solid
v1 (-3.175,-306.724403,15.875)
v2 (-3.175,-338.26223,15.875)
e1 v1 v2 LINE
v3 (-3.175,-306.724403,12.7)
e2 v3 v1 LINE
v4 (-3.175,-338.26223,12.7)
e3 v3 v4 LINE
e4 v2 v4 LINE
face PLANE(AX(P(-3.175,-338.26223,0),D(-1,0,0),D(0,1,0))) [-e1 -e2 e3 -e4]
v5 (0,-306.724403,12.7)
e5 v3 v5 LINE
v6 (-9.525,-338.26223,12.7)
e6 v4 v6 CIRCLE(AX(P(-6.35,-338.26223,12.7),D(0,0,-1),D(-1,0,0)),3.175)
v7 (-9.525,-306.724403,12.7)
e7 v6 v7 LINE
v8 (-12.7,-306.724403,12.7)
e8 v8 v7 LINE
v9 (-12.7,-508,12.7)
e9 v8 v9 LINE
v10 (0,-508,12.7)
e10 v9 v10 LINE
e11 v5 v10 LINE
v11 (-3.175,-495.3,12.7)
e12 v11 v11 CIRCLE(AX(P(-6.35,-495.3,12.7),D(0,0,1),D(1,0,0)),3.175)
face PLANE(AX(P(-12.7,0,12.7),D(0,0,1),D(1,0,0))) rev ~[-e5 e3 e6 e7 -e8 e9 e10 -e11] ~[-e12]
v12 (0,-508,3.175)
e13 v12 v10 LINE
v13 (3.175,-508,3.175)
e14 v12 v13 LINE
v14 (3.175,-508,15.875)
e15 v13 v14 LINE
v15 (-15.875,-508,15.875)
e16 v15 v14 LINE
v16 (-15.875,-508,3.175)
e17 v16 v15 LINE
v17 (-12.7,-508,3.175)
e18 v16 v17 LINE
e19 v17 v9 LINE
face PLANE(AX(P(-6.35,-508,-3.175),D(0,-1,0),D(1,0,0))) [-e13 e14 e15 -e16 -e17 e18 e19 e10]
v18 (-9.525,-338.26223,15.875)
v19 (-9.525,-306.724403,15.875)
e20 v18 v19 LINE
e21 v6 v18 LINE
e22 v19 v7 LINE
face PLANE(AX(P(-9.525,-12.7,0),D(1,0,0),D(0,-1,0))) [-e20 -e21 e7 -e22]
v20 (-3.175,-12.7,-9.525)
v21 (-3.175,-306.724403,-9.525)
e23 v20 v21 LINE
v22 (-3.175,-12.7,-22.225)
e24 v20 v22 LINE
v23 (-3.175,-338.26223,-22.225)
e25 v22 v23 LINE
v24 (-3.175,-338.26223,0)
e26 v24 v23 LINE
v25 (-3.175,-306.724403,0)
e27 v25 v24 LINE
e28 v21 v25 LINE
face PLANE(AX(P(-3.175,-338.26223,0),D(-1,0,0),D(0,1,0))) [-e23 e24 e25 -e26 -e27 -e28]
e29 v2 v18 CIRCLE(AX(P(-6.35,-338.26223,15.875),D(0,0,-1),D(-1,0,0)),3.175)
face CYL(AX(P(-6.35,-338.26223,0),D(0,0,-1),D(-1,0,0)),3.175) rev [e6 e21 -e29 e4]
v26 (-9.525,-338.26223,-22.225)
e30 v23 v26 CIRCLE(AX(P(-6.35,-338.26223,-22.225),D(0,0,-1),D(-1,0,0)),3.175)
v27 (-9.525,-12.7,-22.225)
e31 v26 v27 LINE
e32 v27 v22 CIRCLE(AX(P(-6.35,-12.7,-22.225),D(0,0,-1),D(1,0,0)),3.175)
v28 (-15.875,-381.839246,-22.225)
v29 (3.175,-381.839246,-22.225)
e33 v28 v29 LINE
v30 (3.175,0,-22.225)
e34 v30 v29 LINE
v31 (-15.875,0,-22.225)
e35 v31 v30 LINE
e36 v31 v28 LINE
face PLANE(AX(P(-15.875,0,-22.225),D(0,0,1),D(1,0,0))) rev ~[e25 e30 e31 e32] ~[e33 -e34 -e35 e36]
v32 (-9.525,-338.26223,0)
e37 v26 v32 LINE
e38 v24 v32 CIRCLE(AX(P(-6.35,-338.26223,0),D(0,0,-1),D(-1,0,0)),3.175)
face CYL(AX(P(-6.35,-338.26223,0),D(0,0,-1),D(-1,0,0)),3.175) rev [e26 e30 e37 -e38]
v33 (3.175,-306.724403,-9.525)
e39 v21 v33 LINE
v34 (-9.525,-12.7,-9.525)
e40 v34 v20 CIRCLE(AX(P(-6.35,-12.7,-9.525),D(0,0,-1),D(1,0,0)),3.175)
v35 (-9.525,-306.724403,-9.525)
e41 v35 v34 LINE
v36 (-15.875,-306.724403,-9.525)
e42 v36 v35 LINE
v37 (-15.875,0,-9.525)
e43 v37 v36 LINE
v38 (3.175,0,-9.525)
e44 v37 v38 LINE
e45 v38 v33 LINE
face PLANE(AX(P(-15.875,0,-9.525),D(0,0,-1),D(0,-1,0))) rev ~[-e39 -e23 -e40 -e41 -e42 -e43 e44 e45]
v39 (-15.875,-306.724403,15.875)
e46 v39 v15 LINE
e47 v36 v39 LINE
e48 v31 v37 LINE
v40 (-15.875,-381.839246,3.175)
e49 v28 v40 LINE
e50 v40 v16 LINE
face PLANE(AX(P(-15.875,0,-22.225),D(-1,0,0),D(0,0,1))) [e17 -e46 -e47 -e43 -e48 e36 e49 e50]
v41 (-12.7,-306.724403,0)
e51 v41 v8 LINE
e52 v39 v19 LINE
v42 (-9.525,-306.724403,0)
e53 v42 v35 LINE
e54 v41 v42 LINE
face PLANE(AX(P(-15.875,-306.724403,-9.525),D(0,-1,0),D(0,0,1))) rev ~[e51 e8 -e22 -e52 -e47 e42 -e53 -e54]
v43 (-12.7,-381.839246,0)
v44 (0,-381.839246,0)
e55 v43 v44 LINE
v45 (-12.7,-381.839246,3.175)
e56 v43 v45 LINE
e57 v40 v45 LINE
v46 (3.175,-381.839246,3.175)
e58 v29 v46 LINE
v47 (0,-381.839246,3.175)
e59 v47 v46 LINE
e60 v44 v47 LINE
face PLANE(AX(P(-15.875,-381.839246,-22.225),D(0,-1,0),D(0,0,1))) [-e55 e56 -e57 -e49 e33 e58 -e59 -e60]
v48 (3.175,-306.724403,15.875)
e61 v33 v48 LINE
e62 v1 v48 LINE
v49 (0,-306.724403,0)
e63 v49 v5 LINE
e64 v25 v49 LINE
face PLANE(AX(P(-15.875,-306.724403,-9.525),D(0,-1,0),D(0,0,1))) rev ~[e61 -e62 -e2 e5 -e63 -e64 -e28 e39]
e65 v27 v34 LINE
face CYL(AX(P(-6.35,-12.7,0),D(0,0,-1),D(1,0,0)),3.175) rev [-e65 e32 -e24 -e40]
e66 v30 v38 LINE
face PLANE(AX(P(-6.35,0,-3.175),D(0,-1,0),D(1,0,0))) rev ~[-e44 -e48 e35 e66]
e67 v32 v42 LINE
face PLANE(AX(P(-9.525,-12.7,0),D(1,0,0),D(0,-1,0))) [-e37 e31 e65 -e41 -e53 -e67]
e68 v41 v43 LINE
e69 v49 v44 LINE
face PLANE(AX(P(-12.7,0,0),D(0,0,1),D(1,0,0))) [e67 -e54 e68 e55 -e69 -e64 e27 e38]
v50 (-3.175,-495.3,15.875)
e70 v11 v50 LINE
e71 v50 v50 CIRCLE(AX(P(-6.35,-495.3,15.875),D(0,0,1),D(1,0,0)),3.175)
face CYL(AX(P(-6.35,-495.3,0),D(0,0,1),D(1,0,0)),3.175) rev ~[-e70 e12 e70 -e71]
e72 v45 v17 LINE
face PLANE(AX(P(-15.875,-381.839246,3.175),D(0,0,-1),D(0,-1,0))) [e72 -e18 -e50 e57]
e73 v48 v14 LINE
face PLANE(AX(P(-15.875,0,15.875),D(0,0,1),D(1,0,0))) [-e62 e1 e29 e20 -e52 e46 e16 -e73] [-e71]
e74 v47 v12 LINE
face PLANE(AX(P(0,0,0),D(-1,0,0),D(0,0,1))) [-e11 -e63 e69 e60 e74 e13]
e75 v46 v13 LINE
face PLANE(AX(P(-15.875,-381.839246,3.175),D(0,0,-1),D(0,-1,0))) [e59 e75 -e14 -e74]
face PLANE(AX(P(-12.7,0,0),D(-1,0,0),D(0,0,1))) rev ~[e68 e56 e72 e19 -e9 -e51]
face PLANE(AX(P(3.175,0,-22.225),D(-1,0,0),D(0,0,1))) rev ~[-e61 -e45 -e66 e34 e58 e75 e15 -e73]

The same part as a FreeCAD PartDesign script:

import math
import FreeCAD as App
import Part
import Sketcher
from FreeCAD import Vector
Q = App.Units.Quantity


def add_polygon(sketch, points):
    """Adds a closed chain of lines whose ends are joined by coincident constraints."""
    first, n = sketch.GeometryCount, len(points)
    for a, b in zip(points, points[1:] + points[:1]):
        sketch.addGeometry(Part.LineSegment(App.Vector(*a, 0), App.Vector(*b, 0)), False)
    for i in range(n):
        sketch.addConstraint(Sketcher.Constraint("Coincident", first + i, 2, first + (i + 1) % n, 1))

doc = App.newDocument("Part")
body = doc.addObject("PartDesign::Body", "Body")

# Sketch on XZ plane
sketch1 = body.newObject("Sketcher::SketchObject", "Sketch")
sketch1.AttachmentSupport = (doc.getObject("XZ_Plane"), [""])
sketch1.MapMode = "FlatFace"
add_polygon(sketch1, [(-16, 16), (-16, -22), (3, -22), (3, 16)])  # lines 0-3
add_polygon(sketch1, [(0, 0), (-13, 0), (-13, 13), (0, 13)])  # lines 4-7
sketch1.addConstraint(Sketcher.Constraint("Vertical", 0))
sketch1.addConstraint(Sketcher.Constraint("Horizontal", 1))
sketch1.addConstraint(Sketcher.Constraint("Vertical", 2))
sketch1.addConstraint(Sketcher.Constraint("Horizontal", 3))
sketch1.addConstraint(Sketcher.Constraint("Horizontal", 4))
sketch1.addConstraint(Sketcher.Constraint("Vertical", 5))
sketch1.addConstraint(Sketcher.Constraint("Horizontal", 6))
sketch1.addConstraint(Sketcher.Constraint("Vertical", 7))
sketch1.addConstraint(Sketcher.Constraint("Coincident", 7, 2, -1, 1))
sketch1.addConstraint(Sketcher.Constraint("Equal", 6, 5))
sketch1.addConstraint(Sketcher.Constraint("DistanceX", 4, 2, 4, 1, Q("0.5 in")))
sketch1.addConstraint(Sketcher.Constraint("DistanceY", 0, 2, 0, 1, Q("1.5 in")))
sketch1.addConstraint(Sketcher.Constraint("DistanceX", 1, 1, 1, 2, Q("0.75 in")))
sketch1.addConstraint(Sketcher.Constraint("DistanceX", 0, 2, -1, 1, Q("0.625 in")))
sketch1.addConstraint(Sketcher.Constraint("DistanceY", 0, 2, -1, 1, Q("0.875 in")))
pad1 = body.newObject("PartDesign::Pad", "Pad")
pad1.Profile = sketch1
pad1.Length = Q("20 in")

# Sketch on XY plane
sketch2 = body.newObject("Sketcher::SketchObject", "Sketch001")
sketch2.AttachmentSupport = (doc.getObject("XY_Plane"), [""])
sketch2.MapMode = "FlatFace"
sketch2.addGeometry(Part.ArcOfCircle(Part.Circle(Vector(-6.3, -12.7, 0), Vector(0, 0, 1), 3.2), math.radians(0), math.radians(180)), False)
sketch2.addGeometry(Part.LineSegment(Vector(-9.5, -12.7, 0), Vector(-9.5, -338.3, 0)), False)
sketch2.addGeometry(Part.ArcOfCircle(Part.Circle(Vector(-6.3, -338.3, 0), Vector(0, 0, 1), 3.2), math.radians(180), math.radians(360)), False)
sketch2.addGeometry(Part.LineSegment(Vector(-3.2, -338.3, 0), Vector(-3.2, -12.7, 0)), False)
sketch2.addGeometry(Part.Circle(Vector(-6.3, -495.3, 0), Vector(0, 0, 1), 3.2), False)
sketch2.addConstraint(Sketcher.Constraint("Tangent", 0, 2, 1, 1))
sketch2.addConstraint(Sketcher.Constraint("Tangent", 1, 2, 2, 1))
sketch2.addConstraint(Sketcher.Constraint("Tangent", 2, 2, 3, 1))
sketch2.addConstraint(Sketcher.Constraint("Tangent", 3, 2, 0, 1))
sketch2.addConstraint(Sketcher.Constraint("Vertical", 1))
sketch2.addConstraint(Sketcher.Constraint("Vertical", 3))
sketch2.addConstraint(Sketcher.Constraint("Equal", 2, 4))
sketch2.addConstraint(Sketcher.Constraint("Vertical", 2, 3, 4, 3))
sketch2.addConstraint(Sketcher.Constraint("Diameter", 4, Q("0.25 in")))
sketch2.addConstraint(Sketcher.Constraint("DistanceY", 4, 3, 0, 3, Q("19 in")))
sketch2.addConstraint(Sketcher.Constraint("DistanceY", 0, 3, -1, 1, Q("0.5 in")))
sketch2.addConstraint(Sketcher.Constraint("DistanceX", 0, 3, -1, 1, Q("0.25 in")))
sketch2.addConstraint(Sketcher.Constraint("DistanceY", 1, 2, 1, 1, 325.56223))
pocket1 = body.newObject("PartDesign::Pocket", "Pocket")
pocket1.Profile = sketch2
pocket1.Length = Q("5 in")
pocket1.Midplane = True

# Sketch on YZ plane
sketch3 = body.newObject("Sketcher::SketchObject", "Sketch002")
sketch3.AttachmentSupport = (doc.getObject("YZ_Plane"), [""])
sketch3.MapMode = "FlatFace"
sketch3.AttachmentOffset = App.Placement(Vector(0, 0, -0.625 * 25.4), App.Rotation())
add_polygon(sketch3, [(0, 16), (0, -10), (-307, -10), (-307, 16)])  # lines 0-3
add_polygon(sketch3, [(-382, 3), (-382, -22), (-508, -22), (-508, 3)])  # lines 4-7
sketch3.addConstraint(Sketcher.Constraint("Vertical", 0))
sketch3.addConstraint(Sketcher.Constraint("Horizontal", 1))
sketch3.addConstraint(Sketcher.Constraint("Vertical", 2))
sketch3.addConstraint(Sketcher.Constraint("Horizontal", 3))
sketch3.addConstraint(Sketcher.Constraint("Vertical", 4))
sketch3.addConstraint(Sketcher.Constraint("Horizontal", 5))
sketch3.addConstraint(Sketcher.Constraint("Vertical", 6))
sketch3.addConstraint(Sketcher.Constraint("Horizontal", 7))
sketch3.addConstraint(Sketcher.Constraint("PointOnObject", 0, 2, -2))
sketch3.addConstraint(Sketcher.Constraint("Equal", 2, 4))
sketch3.addConstraint(Sketcher.Constraint("DistanceY", 0, 2, 0, 1, Q("1 in")))
sketch3.addConstraint(Sketcher.Constraint("DistanceX", 5, 2, -1, 1, Q("20 in")))
sketch3.addConstraint(Sketcher.Constraint("DistanceY", 4, 2, 1, 2, Q("0.5 in")))
sketch3.addConstraint(Sketcher.Constraint("DistanceY", 0, 2, -1, 1, Q("0.375 in")))
sketch3.addConstraint(Sketcher.Constraint("DistanceX", 1, 2, 1, 1, 306.724403))
sketch3.addConstraint(Sketcher.Constraint("DistanceX", 5, 2, 5, 1, 126.160754))
pocket2 = body.newObject("PartDesign::Pocket", "Pocket001")
pocket2.Profile = sketch3
pocket2.Length = Q("1 in")
pocket2.Reversed = True

doc.recompute()
